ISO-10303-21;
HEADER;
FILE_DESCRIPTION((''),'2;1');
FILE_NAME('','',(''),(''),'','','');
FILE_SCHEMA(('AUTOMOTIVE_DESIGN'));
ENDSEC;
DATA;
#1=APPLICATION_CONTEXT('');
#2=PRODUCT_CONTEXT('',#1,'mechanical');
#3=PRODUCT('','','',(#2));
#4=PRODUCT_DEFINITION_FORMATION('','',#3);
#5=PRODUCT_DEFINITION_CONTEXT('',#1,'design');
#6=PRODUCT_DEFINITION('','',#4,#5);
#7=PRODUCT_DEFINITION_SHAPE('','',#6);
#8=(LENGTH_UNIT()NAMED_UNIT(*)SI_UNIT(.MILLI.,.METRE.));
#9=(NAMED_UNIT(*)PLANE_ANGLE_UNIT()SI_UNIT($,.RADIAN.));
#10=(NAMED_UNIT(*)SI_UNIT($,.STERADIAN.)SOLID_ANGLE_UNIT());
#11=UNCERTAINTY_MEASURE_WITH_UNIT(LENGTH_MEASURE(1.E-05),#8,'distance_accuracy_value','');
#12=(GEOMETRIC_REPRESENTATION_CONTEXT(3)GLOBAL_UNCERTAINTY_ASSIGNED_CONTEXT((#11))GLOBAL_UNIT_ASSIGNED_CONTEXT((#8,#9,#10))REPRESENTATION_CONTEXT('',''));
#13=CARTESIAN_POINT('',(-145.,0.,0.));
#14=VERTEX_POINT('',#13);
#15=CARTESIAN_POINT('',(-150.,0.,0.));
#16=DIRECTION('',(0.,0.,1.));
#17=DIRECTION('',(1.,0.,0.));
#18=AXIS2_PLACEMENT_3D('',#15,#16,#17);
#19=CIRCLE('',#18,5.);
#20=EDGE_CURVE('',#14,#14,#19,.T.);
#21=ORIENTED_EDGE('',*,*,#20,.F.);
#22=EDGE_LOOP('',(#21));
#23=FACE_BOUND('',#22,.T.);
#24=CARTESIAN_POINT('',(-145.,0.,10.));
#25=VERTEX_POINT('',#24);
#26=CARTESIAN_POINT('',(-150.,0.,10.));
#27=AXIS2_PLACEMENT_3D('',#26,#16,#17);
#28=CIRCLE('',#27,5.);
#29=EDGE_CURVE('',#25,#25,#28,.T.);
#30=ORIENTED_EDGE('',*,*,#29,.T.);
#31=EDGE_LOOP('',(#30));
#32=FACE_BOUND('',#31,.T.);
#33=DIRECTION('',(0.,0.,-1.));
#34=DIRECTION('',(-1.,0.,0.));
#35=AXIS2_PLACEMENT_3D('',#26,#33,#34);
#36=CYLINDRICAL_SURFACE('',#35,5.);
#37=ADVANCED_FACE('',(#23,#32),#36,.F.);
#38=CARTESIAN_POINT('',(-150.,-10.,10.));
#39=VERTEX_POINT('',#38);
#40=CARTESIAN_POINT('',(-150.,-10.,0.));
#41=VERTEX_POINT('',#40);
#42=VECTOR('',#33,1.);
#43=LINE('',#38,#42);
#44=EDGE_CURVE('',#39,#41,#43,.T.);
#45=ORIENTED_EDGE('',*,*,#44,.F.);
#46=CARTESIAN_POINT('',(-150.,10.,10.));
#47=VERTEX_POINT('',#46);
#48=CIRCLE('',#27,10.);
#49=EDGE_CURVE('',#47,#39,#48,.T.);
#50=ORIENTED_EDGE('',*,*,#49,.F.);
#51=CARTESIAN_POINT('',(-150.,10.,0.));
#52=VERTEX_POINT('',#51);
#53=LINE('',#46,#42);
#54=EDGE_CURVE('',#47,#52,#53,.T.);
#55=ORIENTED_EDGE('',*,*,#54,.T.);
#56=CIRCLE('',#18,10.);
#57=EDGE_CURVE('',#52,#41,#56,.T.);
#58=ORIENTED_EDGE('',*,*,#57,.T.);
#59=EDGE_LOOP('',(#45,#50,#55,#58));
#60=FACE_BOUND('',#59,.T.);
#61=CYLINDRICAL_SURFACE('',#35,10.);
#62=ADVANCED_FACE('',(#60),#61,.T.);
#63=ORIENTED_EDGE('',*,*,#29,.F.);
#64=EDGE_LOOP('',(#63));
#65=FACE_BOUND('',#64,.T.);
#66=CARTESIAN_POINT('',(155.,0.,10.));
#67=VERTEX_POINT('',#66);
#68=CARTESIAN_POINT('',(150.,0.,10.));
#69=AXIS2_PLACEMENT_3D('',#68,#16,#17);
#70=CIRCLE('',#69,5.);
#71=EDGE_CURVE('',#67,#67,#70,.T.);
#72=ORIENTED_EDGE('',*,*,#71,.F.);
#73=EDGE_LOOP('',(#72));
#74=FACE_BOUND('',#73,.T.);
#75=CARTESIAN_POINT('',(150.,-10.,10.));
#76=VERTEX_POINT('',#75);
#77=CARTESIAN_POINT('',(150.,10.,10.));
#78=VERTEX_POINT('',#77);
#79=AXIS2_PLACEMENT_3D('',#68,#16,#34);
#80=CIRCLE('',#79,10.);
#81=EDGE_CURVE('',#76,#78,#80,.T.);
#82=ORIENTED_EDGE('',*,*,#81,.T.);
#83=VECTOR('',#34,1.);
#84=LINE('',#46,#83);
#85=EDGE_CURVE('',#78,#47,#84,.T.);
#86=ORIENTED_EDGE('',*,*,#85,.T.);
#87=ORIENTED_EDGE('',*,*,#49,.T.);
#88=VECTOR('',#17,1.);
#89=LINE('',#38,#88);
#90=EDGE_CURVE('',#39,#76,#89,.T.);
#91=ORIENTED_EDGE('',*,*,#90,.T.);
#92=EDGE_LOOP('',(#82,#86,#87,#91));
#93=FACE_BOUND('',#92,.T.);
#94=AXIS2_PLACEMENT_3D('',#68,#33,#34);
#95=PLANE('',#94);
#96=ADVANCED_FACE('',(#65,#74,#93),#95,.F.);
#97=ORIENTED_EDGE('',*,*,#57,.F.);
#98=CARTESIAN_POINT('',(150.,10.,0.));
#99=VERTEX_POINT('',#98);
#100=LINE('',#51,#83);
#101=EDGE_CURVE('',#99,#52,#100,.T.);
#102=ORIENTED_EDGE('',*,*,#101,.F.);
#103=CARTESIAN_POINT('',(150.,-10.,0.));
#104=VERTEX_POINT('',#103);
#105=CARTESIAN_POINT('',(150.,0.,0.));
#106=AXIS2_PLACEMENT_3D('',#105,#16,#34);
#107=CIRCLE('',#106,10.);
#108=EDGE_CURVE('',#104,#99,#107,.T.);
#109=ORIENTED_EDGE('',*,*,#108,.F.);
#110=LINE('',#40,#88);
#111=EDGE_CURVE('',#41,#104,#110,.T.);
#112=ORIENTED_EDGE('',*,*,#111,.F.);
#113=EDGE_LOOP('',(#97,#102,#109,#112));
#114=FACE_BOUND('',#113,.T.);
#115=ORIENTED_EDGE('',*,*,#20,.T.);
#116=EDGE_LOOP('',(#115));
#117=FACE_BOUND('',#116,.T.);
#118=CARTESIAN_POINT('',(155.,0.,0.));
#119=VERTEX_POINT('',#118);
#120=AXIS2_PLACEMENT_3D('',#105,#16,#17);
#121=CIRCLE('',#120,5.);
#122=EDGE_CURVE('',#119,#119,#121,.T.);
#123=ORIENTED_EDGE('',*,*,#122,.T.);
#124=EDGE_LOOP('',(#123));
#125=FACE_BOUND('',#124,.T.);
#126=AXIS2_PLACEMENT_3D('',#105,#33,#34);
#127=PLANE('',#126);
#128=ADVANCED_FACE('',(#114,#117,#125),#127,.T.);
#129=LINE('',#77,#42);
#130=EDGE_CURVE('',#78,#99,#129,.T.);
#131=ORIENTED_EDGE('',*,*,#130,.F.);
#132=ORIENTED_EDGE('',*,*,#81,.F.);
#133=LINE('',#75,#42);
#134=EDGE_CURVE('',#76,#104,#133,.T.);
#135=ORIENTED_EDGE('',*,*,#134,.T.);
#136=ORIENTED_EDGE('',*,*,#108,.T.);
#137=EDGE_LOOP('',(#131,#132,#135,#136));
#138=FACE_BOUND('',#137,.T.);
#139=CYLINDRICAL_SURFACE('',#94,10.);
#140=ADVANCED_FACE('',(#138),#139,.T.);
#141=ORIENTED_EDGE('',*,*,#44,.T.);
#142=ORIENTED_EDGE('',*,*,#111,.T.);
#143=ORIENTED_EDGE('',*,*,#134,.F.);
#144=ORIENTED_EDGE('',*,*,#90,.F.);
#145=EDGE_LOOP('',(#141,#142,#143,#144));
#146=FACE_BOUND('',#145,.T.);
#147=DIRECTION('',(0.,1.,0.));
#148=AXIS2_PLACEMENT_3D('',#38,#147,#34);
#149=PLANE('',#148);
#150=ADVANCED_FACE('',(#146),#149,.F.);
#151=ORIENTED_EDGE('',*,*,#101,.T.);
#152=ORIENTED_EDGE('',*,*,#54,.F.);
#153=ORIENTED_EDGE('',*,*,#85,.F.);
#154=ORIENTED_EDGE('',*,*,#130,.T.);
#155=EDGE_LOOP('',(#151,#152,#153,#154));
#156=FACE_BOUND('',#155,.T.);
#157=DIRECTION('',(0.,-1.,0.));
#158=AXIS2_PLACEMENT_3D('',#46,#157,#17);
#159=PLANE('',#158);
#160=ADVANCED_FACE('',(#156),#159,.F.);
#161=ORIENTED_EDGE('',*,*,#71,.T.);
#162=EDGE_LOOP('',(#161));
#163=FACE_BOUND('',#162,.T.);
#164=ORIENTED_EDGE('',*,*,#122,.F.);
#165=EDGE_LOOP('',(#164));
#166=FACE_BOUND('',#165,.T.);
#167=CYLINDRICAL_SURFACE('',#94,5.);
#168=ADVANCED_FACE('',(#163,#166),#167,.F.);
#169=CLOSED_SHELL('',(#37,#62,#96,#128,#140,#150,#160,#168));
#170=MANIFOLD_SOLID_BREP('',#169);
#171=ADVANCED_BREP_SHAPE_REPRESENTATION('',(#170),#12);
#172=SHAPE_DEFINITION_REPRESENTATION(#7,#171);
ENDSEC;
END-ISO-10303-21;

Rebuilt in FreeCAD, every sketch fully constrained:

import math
import FreeCAD as App
import Part
import Sketcher

V = App.Vector

doc = App.newDocument("Part")
body = doc.addObject("PartDesign::Body", "Body")

# Sketch on XY plane
sketch1 = doc.addObject("Sketcher::SketchObject", "Sketch")
body.addObject(sketch1)
sketch1.AttachmentSupport = (doc.XY_Plane, [""])
sketch1.MapMode = "FlatFace"
sketch1.addGeometry(Part.LineSegment(V(150, 10, 0), V(-150, 10, 0)), False)
sketch1.addGeometry(Part.ArcOfCircle(Part.Circle(V(-150, 0, 0), V(0, 0, 1), 10), math.radians(90), math.radians(270)), False)
sketch1.addGeometry(Part.LineSegment(V(-150, -10, 0), V(150, -10, 0)), False)
sketch1.addGeometry(Part.ArcOfCircle(Part.Circle(V(150, 0, 0), V(0, 0, 1), 10), math.radians(-90), math.radians(90)), False)
sketch1.addGeometry(Part.Circle(V(150, 0, 0), V(0, 0, 1), 5), False)
sketch1.addGeometry(Part.Circle(V(-150, 0, 0), V(0, 0, 1), 5), False)
sketch1.addConstraint(Sketcher.Constraint("Tangent", 0, 2, 1, 1))
sketch1.addConstraint(Sketcher.Constraint("Tangent", 1, 2, 2, 1))
sketch1.addConstraint(Sketcher.Constraint("Tangent", 2, 2, 3, 1))
sketch1.addConstraint(Sketcher.Constraint("Tangent", 3, 2, 0, 1))
sketch1.addConstraint(Sketcher.Constraint("Horizontal", 0))
sketch1.addConstraint(Sketcher.Constraint("Horizontal", 2))
sketch1.addConstraint(Sketcher.Constraint("Coincident", 4, 3, 3, 3))
sketch1.addConstraint(Sketcher.Constraint("Coincident", 5, 3, 1, 3))
sketch1.addConstraint(Sketcher.Constraint("Equal", 4, 5))
sketch1.addConstraint(Sketcher.Constraint("Symmetric", 1, 3, 3, 3, -1, 1))
sketch1.addConstraint(Sketcher.Constraint("Diameter", 4, 10.0))
sketch1.addConstraint(Sketcher.Constraint("Radius", 1, 10.0))
sketch1.addConstraint(Sketcher.Constraint("DistanceX", 0, 2, 0, 1, 300.0))
pad1 = doc.addObject("PartDesign::Pad", "Pad")
body.addObject(pad1)
pad1.Profile = sketch1
pad1.Length = 10

doc.recompute()
